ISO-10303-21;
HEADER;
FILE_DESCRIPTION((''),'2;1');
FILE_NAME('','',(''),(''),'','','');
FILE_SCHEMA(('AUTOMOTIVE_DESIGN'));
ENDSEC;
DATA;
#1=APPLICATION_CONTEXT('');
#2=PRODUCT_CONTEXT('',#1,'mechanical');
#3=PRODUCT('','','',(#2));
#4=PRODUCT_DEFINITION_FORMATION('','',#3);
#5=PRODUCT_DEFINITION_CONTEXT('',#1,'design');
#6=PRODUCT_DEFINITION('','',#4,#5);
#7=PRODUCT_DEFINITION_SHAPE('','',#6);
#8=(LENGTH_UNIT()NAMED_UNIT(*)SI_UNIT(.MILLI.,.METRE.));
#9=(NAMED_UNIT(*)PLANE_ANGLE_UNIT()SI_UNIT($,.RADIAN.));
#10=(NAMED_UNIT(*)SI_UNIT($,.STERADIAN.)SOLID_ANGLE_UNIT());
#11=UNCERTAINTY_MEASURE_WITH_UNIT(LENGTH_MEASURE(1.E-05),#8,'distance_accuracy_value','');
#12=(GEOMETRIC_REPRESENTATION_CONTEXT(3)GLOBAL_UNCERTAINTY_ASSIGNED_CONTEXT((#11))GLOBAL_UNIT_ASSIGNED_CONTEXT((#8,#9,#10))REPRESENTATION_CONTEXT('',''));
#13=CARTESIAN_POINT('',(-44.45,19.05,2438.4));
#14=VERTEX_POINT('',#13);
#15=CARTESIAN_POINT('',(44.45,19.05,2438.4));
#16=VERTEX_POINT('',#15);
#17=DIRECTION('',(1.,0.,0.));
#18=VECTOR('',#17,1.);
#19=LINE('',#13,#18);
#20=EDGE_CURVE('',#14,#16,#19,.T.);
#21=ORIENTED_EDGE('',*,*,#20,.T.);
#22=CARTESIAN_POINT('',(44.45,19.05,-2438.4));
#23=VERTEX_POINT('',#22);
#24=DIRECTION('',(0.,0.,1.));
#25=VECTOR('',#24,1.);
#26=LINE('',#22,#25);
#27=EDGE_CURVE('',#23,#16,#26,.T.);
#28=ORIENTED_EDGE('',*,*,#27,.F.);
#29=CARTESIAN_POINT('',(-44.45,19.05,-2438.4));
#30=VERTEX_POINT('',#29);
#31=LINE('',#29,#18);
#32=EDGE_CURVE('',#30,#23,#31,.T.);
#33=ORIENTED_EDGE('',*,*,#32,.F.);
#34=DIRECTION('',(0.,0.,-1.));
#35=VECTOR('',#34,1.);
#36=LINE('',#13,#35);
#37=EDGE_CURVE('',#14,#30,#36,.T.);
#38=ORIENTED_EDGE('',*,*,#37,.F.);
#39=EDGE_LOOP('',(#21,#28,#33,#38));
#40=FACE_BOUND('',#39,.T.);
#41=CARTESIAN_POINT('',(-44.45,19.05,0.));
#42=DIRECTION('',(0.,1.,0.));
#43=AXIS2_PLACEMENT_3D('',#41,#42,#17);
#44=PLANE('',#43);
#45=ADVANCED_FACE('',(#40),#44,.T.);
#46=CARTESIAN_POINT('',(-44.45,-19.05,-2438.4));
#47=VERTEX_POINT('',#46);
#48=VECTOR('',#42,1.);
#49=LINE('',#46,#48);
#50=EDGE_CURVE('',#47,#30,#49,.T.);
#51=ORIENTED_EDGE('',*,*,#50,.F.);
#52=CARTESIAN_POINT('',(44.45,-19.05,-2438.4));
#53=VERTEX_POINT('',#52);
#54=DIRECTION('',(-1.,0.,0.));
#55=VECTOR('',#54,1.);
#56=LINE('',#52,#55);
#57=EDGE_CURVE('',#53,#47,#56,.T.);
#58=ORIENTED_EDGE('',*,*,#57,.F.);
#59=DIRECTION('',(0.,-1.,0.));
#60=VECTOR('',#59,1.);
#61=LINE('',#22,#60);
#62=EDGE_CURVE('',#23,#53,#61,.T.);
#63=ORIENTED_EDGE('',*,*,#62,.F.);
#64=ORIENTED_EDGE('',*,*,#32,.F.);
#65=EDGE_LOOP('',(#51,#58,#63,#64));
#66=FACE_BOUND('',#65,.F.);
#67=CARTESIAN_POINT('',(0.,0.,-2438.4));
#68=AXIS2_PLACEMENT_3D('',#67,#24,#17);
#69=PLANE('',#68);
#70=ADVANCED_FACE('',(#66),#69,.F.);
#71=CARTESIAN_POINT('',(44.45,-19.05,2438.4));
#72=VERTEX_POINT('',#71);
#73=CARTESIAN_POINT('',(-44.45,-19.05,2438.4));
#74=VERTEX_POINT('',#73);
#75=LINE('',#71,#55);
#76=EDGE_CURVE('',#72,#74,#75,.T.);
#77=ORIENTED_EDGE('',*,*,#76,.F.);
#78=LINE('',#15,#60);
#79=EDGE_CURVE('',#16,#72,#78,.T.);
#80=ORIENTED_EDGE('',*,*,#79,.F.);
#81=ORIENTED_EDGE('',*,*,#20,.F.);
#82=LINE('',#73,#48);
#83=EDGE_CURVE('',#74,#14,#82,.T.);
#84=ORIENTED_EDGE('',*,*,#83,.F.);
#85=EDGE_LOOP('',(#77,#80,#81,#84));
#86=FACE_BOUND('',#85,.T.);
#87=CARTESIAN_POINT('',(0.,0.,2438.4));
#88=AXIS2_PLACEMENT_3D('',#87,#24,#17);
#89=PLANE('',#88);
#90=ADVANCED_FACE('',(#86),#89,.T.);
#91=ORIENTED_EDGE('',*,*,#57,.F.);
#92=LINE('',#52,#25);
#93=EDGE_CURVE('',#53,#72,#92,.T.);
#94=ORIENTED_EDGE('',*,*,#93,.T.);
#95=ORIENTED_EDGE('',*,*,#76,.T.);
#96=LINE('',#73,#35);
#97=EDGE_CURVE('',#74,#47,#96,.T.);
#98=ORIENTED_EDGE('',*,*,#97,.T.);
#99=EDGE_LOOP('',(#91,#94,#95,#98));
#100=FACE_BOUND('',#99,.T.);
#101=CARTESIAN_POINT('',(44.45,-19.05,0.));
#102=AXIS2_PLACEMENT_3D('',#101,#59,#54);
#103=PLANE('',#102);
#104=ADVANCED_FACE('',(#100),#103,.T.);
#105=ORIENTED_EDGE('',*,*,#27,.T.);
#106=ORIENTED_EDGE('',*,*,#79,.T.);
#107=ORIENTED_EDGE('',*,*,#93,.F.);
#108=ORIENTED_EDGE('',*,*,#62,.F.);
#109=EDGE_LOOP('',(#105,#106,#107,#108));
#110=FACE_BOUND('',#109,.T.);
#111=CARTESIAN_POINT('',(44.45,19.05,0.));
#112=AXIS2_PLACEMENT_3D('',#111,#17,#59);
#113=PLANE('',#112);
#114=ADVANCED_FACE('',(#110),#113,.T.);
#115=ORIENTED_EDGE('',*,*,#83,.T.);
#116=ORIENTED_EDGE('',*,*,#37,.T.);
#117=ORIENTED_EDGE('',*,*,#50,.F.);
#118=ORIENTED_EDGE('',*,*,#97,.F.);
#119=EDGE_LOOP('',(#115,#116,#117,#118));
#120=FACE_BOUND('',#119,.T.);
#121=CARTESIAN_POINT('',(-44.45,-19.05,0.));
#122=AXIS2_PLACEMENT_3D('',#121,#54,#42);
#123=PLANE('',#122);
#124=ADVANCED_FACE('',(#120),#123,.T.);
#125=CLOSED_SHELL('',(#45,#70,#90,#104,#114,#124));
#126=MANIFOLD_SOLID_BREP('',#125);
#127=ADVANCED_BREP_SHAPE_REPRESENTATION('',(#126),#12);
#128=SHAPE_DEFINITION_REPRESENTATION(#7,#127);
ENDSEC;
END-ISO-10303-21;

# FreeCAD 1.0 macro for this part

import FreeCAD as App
import Part
import Sketcher
from FreeCAD import Vector
Q = App.Units.Quantity

doc = App.newDocument("Part")
params = doc.addObject("Spreadsheet::Sheet", "Params")
for row, (alias, value) in enumerate([
    ("sketch1_width", "3.5 in"),
    ("sketch1_height", "1.5 in"),
    ("pad1_length", "192 in"),
], start=1):
    params.set(f"A{row}", alias)
    params.set(f"B{row}", "=" + value)
    params.setAlias(f"B{row}", alias)

body = doc.addObject("PartDesign::Body", "Body")

# Sketch on XY plane
sketch1 = doc.addObject("Sketcher::SketchObject", "Sketch")
body.addObject(sketch1)
sketch1.AttachmentSupport = (doc.XY_Plane, [""])
sketch1.MapMode = "FlatFace"
sketch1.addGeometry(Part.LineSegment(Vector(-44.45, -19.05, 0), Vector(44.45, -19.05, 0)), False)
sketch1.addGeometry(Part.LineSegment(Vector(44.45, -19.05, 0), Vector(44.45, 19.05, 0)), False)
sketch1.addGeometry(Part.LineSegment(Vector(44.45, 19.05, 0), Vector(-44.45, 19.05, 0)), False)
sketch1.addGeometry(Part.LineSegment(Vector(-44.45, 19.05, 0), Vector(-44.45, -19.05, 0)), False)
sketch1.addConstraint(Sketcher.Constraint("Coincident", 0, 2, 1, 1))
sketch1.addConstraint(Sketcher.Constraint("Coincident", 1, 2, 2, 1))
sketch1.addConstraint(Sketcher.Constraint("Coincident", 2, 2, 3, 1))
sketch1.addConstraint(Sketcher.Constraint("Coincident", 3, 2, 0, 1))
sketch1.addConstraint(Sketcher.Constraint("Horizontal", 0))
sketch1.addConstraint(Sketcher.Constraint("Vertical", 1))
sketch1.addConstraint(Sketcher.Constraint("Horizontal", 2))
sketch1.addConstraint(Sketcher.Constraint("Vertical", 3))
sketch1.addConstraint(Sketcher.Constraint("Symmetric", 0, 2, 2, 2, -1, 1))
sketch1.addConstraint(Sketcher.Constraint("DistanceX", 0, 1, 0, 2, Q("3.5 in")))
sketch1.addConstraint(Sketcher.Constraint("DistanceY", 1, 1, 1, 2, Q("1.5 in")))
sketch1.setExpression("Constraints[9]", "Params.sketch1_width")
sketch1.setExpression("Constraints[10]", "Params.sketch1_height")
pad1 = doc.addObject("PartDesign::Pad", "Pad")
body.addObject(pad1)
pad1.Profile = sketch1
pad1.setExpression("Length", "Params.pad1_length")
pad1.Midplane = True

doc.recompute()
